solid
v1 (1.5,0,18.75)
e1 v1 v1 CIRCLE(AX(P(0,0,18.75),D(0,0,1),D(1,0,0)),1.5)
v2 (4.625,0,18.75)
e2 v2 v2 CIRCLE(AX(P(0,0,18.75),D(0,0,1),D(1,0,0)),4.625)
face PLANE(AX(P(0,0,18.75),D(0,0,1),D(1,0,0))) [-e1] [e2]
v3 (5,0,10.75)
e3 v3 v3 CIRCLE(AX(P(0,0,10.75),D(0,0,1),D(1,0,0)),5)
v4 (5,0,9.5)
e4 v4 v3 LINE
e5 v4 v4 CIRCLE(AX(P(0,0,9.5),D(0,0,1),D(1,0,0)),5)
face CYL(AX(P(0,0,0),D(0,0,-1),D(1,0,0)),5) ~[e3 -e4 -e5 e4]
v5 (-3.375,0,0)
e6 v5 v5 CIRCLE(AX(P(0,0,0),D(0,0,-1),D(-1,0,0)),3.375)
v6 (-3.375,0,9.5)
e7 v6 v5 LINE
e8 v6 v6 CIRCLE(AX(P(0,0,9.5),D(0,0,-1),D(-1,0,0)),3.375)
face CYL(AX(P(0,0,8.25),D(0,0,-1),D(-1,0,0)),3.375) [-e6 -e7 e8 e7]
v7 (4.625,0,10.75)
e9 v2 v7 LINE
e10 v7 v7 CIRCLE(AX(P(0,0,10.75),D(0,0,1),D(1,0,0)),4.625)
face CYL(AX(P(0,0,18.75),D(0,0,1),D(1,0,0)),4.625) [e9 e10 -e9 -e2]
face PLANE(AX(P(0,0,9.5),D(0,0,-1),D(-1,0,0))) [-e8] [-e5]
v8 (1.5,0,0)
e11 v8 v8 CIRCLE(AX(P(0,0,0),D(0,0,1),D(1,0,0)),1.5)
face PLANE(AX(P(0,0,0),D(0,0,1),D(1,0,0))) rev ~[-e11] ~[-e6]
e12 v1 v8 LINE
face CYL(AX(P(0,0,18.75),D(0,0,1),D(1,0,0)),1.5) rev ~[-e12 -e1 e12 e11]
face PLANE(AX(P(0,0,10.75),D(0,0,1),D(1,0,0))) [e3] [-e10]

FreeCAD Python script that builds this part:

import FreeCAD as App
import Part
import Sketcher
Q = App.Units.Quantity

doc = App.newDocument("Part")
params = doc.addObject("Spreadsheet::Sheet", "Params")
for row, (alias, value) in enumerate([
    ("sketch1_diameter", "10 mm"),
    ("pad1_length", "18.75 mm"),
    ("sketch2_diameter", "9.25 mm"),
    ("sketch2_diameter2", "10 mm"),
    ("pocket1_length", "8 mm"),
    ("sketch3_diameter", "3 mm"),
    ("pocket2_length", "50 mm"),
    ("sketch4_diameter", "10 mm"),
    ("sketch4_diameter2", "6.75 mm"),
    ("pocket3_length", "8.25 mm"),
    ("sketch5_diameter", "10 mm"),
    ("sketch5_diameter2", "6.75 mm"),
    ("pocket4_length", "1.25 mm"),
], start=1):
    params.set(f"A{row}", alias)
    params.set(f"B{row}", "=" + value)
    params.setAlias(f"B{row}", alias)

body = doc.addObject("PartDesign::Body", "Body")

sketch1 = body.newObject("Sketcher::SketchObject", "Sketch")
sketch1.AttachmentSupport = (doc.getObject("XY_Plane"), [""])
sketch1.MapMode = "FlatFace"
sketch1.addGeometry(Part.Circle(App.Vector(0, 0, 0), App.Vector(0, 0, 1), 5), False)
sketch1.addConstraint([
    Sketcher.Constraint("Coincident", 0, 3, -1, 1),
    Sketcher.Constraint("Diameter", 0, Q("10 mm")),
])
sketch1.setExpression("Constraints[1]", "Params.sketch1_diameter")
pad1 = body.newObject("PartDesign::Pad", "Pad")
pad1.Profile = sketch1
pad1.setExpression("Length", "Params.pad1_length")

sketch2 = body.newObject("Sketcher::SketchObject", "Sketch001")
sketch2.AttachmentSupport = (doc.getObject("XY_Plane"), [""])
sketch2.MapMode = "FlatFace"
sketch2.AttachmentOffset = App.Placement(App.Vector(0, 0, 18.75), App.Rotation())
sketch2.addGeometry([
    Part.Circle(App.Vector(0, 0, 0), App.Vector(0, 0, 1), 5),
    Part.Circle(App.Vector(0, 0, 0), App.Vector(0, 0, 1), 4.6),
], False)
sketch2.addConstraint([
    Sketcher.Constraint("Coincident", 0, 3, -1, 1),
    Sketcher.Constraint("Coincident", 1, 3, -1, 1),
    Sketcher.Constraint("Diameter", 1, Q("9.25 mm")),
    Sketcher.Constraint("Diameter", 0, Q("10 mm")),
])
sketch2.setExpression("Constraints[2]", "Params.sketch2_diameter")
sketch2.setExpression("Constraints[3]", "Params.sketch2_diameter2")
pocket1 = body.newObject("PartDesign::Pocket", "Pocket")
pocket1.Profile = sketch2
pocket1.setExpression("Length", "Params.pocket1_length")

sketch3 = body.newObject("Sketcher::SketchObject", "Sketch002")
sketch3.AttachmentSupport = (doc.getObject("XY_Plane"), [""])
sketch3.MapMode = "FlatFace"
sketch3.AttachmentOffset = App.Placement(App.Vector(0, 0, 18.75), App.Rotation())
sketch3.addGeometry(Part.Circle(App.Vector(0, 0, 0), App.Vector(0, 0, 1), 1.5), False)
sketch3.addConstraint([
    Sketcher.Constraint("Coincident", 0, 3, -1, 1),
    Sketcher.Constraint("Diameter", 0, Q("3 mm")),
])
sketch3.setExpression("Constraints[1]", "Params.sketch3_diameter")
pocket2 = body.newObject("PartDesign::Pocket", "Pocket001")
pocket2.Profile = sketch3
pocket2.setExpression("Length", "Params.pocket2_length")

sketch4 = body.newObject("Sketcher::SketchObject", "Sketch003")
sketch4.AttachmentSupport = (doc.getObject("XY_Plane"), [""])
sketch4.MapMode = "FlatFace"
sketch4.addGeometry([
    Part.Circle(App.Vector(0, 0, 0), App.Vector(0, 0, 1), 5),
    Part.Circle(App.Vector(0, 0, 0), App.Vector(0, 0, 1), 3.4),
], False)
sketch4.addConstraint([
    Sketcher.Constraint("Coincident", 0, 3, -1, 1),
    Sketcher.Constraint("Coincident", 1, 3, -1, 1),
    Sketcher.Constraint("Diameter", 0, Q("10 mm")),
    Sketcher.Constraint("Diameter", 1, Q("6.75 mm")),
])
sketch4.setExpression("Constraints[2]", "Params.sketch4_diameter")
sketch4.setExpression("Constraints[3]", "Params.sketch4_diameter2")
pocket3 = body.newObject("PartDesign::Pocket", "Pocket002")
pocket3.Profile = sketch4
pocket3.setExpression("Length", "Params.pocket3_length")
pocket3.Reversed = True

sketch5 = body.newObject("Sketcher::SketchObject", "Sketch004")
sketch5.AttachmentSupport = (doc.getObject("XY_Plane"), [""])
sketch5.MapMode = "FlatFace"
sketch5.AttachmentOffset = App.Placement(App.Vector(0, 0, 8.25), App.Rotation())
sketch5.addGeometry([
    Part.Circle(App.Vector(0, 0, 0), App.Vector(0, 0, 1), 5),
    Part.Circle(App.Vector(0, 0, 0), App.Vector(0, 0, 1), 3.4),
], False)
sketch5.addConstraint([
    Sketcher.Constraint("Coincident", 0, 3, -1, 1),
    Sketcher.Constraint("Coincident", 1, 3, -1, 1),
    Sketcher.Constraint("Diameter", 0, Q("10 mm")),
    Sketcher.Constraint("Diameter", 1, Q("6.75 mm")),
])
sketch5.setExpression("Constraints[2]", "Params.sketch5_diameter")
sketch5.setExpression("Constraints[3]", "Params.sketch5_diameter2")
pocket4 = body.newObject("PartDesign::Pocket", "Pocket003")
pocket4.Profile = sketch5
pocket4.setExpression("Length", "Params.pocket4_length")
pocket4.Reversed = True

doc.recompute()
